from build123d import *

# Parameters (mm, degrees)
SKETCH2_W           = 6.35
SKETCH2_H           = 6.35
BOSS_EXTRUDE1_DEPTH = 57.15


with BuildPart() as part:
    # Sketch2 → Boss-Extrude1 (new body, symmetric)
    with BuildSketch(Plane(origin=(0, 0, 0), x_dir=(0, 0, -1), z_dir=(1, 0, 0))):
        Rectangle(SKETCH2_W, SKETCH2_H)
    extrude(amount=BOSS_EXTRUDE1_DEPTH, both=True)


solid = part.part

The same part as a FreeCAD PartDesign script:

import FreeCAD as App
import Part
import Sketcher
from FreeCAD import Vector
Q = App.Units.Quantity

doc = App.newDocument("Part")
params = doc.addObject("Spreadsheet::Sheet", "Params")
for row, (alias, value) in enumerate([
    ("sketch1_width", "0.25 in"),
    ("pad1_length", "4.5 in"),
], start=1):
    params.set(f"A{row}", alias)
    params.set(f"B{row}", "=" + value)
    params.setAlias(f"B{row}", alias)

body = doc.addObject("PartDesign::Body", "Body")

sketch1 = doc.addObject("Sketcher::SketchObject", "Sketch")
body.addObject(sketch1)
sketch1.AttachmentSupport = (doc.YZ_Plane, [""])
sketch1.MapMode = "FlatFace"
sketch1.addGeometry(Part.LineSegment(Vector(3.175, 3.175, 0), Vector(-3.175, 3.175, 0)), False)
sketch1.addGeometry(Part.LineSegment(Vector(-3.175, 3.175, 0), Vector(-3.175, -3.175, 0)), False)
sketch1.addGeometry(Part.LineSegment(Vector(-3.175, -3.175, 0), Vector(3.175, -3.175, 0)), False)
sketch1.addGeometry(Part.LineSegment(Vector(3.175, -3.175, 0), Vector(3.175, 3.175, 0)), False)
sketch1.addConstraint(Sketcher.Constraint("Coincident", 0, 2, 1, 1))
sketch1.addConstraint(Sketcher.Constraint("Coincident", 1, 2, 2, 1))
sketch1.addConstraint(Sketcher.Constraint("Coincident", 2, 2, 3, 1))
sketch1.addConstraint(Sketcher.Constraint("Coincident", 3, 2, 0, 1))
sketch1.addConstraint(Sketcher.Constraint("Horizontal", 0))
sketch1.addConstraint(Sketcher.Constraint("Vertical", 1))
sketch1.addConstraint(Sketcher.Constraint("Horizontal", 2))
sketch1.addConstraint(Sketcher.Constraint("Vertical", 3))
sketch1.addConstraint(Sketcher.Constraint("Symmetric", 0, 2, 2, 2, -1, 1))
sketch1.addConstraint(Sketcher.Constraint("Equal", 2, 1))
sketch1.addConstraint(Sketcher.Constraint("DistanceX", 0, 2, 0, 1, Q("0.25 in")))
sketch1.setExpression("Constraints[10]", "Params.sketch1_width")
pad1 = doc.addObject("PartDesign::Pad", "Pad")
body.addObject(pad1)
pad1.Profile = sketch1
pad1.setExpression("Length", "Params.pad1_length")
pad1.Midplane = True

doc.recompute()
